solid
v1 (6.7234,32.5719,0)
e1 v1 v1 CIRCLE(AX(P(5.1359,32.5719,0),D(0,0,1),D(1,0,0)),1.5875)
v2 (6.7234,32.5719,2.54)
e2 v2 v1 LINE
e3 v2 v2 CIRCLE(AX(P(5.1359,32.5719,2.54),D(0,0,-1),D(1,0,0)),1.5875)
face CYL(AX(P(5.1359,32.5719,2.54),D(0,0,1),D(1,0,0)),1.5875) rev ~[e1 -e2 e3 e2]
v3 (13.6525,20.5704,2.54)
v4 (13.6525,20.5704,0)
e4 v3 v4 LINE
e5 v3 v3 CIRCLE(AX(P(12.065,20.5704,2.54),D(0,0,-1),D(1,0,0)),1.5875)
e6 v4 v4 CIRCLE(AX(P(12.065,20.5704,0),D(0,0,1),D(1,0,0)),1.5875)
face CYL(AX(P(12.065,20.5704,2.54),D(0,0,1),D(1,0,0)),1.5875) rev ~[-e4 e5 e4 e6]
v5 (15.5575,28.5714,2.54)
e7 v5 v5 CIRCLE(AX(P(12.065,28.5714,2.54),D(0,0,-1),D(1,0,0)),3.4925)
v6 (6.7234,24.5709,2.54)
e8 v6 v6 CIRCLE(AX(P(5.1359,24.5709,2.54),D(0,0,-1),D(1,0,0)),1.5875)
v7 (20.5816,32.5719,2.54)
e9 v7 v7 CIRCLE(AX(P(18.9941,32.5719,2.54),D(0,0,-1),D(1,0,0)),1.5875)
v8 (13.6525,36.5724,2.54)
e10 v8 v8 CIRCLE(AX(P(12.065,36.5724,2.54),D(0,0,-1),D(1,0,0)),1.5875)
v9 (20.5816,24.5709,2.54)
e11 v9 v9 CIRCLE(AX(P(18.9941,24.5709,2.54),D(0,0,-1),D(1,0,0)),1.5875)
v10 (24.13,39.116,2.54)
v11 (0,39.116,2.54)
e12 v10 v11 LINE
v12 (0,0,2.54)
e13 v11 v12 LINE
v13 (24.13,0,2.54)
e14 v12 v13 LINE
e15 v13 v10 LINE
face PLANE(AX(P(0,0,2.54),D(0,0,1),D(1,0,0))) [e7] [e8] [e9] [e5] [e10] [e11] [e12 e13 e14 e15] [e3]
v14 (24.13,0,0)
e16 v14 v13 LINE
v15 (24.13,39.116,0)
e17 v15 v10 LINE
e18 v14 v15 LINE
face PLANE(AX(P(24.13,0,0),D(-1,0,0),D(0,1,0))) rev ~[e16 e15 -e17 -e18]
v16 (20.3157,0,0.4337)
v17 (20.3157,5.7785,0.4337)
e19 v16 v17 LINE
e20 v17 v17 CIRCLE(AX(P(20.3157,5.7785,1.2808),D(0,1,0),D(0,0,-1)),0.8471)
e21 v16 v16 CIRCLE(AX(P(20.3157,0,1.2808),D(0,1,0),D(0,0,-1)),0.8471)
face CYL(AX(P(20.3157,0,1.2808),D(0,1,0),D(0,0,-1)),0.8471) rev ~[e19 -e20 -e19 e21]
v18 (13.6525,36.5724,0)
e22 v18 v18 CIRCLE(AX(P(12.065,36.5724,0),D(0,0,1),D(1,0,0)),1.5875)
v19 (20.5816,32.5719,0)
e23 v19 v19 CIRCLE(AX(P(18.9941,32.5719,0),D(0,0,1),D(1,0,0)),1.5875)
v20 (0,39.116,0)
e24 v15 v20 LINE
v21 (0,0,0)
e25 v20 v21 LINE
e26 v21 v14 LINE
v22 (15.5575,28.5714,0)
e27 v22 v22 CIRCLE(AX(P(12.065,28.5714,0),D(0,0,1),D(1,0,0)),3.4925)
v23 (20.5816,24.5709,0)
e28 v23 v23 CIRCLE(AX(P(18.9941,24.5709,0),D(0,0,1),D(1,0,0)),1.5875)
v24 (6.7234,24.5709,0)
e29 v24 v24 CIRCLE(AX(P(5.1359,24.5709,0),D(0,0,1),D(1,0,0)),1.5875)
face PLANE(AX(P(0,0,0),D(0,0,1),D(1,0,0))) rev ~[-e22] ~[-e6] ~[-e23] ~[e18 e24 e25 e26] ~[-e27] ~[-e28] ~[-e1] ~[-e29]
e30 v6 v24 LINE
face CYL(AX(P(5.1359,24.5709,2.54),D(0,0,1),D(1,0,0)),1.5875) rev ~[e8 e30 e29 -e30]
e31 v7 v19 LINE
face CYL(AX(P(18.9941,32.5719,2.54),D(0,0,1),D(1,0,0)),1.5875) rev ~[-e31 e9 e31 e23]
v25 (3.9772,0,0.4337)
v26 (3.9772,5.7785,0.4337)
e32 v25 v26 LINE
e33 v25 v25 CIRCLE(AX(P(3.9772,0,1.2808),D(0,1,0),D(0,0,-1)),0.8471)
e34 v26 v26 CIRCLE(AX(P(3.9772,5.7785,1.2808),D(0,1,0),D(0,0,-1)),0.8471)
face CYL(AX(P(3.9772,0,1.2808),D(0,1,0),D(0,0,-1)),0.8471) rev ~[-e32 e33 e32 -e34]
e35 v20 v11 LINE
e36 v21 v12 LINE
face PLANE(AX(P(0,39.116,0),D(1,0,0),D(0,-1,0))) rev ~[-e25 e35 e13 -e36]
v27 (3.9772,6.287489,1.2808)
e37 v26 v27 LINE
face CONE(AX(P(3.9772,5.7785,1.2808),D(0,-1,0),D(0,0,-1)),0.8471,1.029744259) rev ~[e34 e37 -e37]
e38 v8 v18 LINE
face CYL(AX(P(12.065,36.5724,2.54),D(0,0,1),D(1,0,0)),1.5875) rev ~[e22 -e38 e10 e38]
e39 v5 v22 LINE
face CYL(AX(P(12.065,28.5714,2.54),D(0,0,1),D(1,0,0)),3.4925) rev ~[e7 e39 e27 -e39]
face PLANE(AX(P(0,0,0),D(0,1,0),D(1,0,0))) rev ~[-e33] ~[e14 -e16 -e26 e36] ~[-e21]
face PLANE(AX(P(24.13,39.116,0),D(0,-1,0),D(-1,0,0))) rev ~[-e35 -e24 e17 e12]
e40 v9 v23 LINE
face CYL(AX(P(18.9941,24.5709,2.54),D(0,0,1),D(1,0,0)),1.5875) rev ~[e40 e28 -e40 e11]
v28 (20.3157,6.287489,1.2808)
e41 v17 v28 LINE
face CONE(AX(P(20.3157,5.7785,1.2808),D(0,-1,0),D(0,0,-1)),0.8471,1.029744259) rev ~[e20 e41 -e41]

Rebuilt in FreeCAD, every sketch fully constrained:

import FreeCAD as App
import Part
import Sketcher
from FreeCAD import Vector
Q = App.Units.Quantity


def add_polygon(sketch, points):
    """Adds a closed chain of lines whose ends are joined by coincident constraints."""
    first, n = sketch.GeometryCount, len(points)
    for a, b in zip(points, points[1:] + points[:1]):
        sketch.addGeometry(Part.LineSegment(App.Vector(*a, 0), App.Vector(*b, 0)), False)
    for i in range(n):
        sketch.addConstraint(Sketcher.Constraint("Coincident", first + i, 2, first + (i + 1) % n, 1))

doc = App.newDocument("Part")
params = doc.addObject("Spreadsheet::Sheet", "Params")
for row, (alias, value) in enumerate([
    ("sketch1_width", "0.95 in"),
    ("sketch1_height", "1.54 in"),
    ("pad1_length", "0.1 in"),
    ("hole_diameter", "0.0667008 in"),
    ("hole_depth", "0.2275 in"),
    ("sketch3_diameter", "0.275 in"),
    ("sketch3_diameter2", "0.125 in"),
], start=1):
    params.set(f"A{row}", alias)
    params.set(f"B{row}", "=" + value)
    params.setAlias(f"B{row}", alias)

body = doc.addObject("PartDesign::Body", "Body")

sketch1 = body.newObject("Sketcher::SketchObject", "Sketch")
sketch1.AttachmentSupport = (doc.getObject("XY_Plane"), [""])
sketch1.MapMode = "FlatFace"
add_polygon(sketch1, [(0, 39.116), (0, 0), (24.13, 0), (24.13, 39.116)])
sketch1.addConstraint([
    Sketcher.Constraint("Vertical", 0),
    Sketcher.Constraint("Horizontal", 1),
    Sketcher.Constraint("Vertical", 2),
    Sketcher.Constraint("Horizontal", 3),
    Sketcher.Constraint("Coincident", 0, 2, -1, 1),
    Sketcher.Constraint("DistanceX", 1, 1, 1, 2, Q("0.95 in")),
    Sketcher.Constraint("DistanceY", 0, 2, 0, 1, Q("1.54 in")),
])
sketch1.setExpression("Constraints[9]", "Params.sketch1_width")
sketch1.setExpression("Constraints[10]", "Params.sketch1_height")
pad1 = body.newObject("PartDesign::Pad", "Pad")
pad1.Profile = sketch1
pad1.setExpression("Length", "Params.pad1_length")

sketch2 = body.newObject("Sketcher::SketchObject", "Sketch001")
sketch2.AttachmentSupport = (doc.getObject("XZ_Plane"), [""])
sketch2.MapMode = "FlatFace"
sketch2.addGeometry([
    Part.Circle(Vector(3.9772, 1.2808, 0), Vector(0, 0, 1), 0.8471),
    Part.Circle(Vector(20.3157, 1.2808, 0), Vector(0, 0, 1), 0.8471),
], False)
sketch2.addConstraint([
    Sketcher.Constraint("Equal", 0, 1),
    Sketcher.Constraint("Horizontal", 0, 3, 1, 3),
    Sketcher.Constraint("Diameter", 0, Q("0.0667 in")),
    Sketcher.Constraint("DistanceX", -1, 1, 0, 3, 3.9772),
    Sketcher.Constraint("DistanceY", -1, 1, 0, 3, 1.2808),
    Sketcher.Constraint("DistanceX", -1, 1, 1, 3, 20.3157),
])
doc.recompute()
hole = body.newObject("PartDesign::Hole", "Hole")
hole.Profile = sketch2
hole.ThreadType = "None"
hole.setExpression("Diameter", "Params.hole_diameter")
hole.DepthType = "Dimension"
hole.setExpression("Depth", "Params.hole_depth")
hole.DrillPoint = "Angled"
hole.DrillPointAngle = 118

sketch3 = body.newObject("Sketcher::SketchObject", "Sketch002")
sketch3.AttachmentSupport = (doc.getObject("XY_Plane"), [""])
sketch3.MapMode = "FlatFace"
sketch3.AttachmentOffset = App.Placement(Vector(0, 0, 0.1 * 25.4), App.Rotation())
sketch3.addGeometry([
    Part.Circle(Vector(12.065, 28.5714, 0), Vector(0, 0, 1), 3.4925),
    Part.Circle(Vector(12.065, 36.5724, 0), Vector(0, 0, 1), 1.5875),
    Part.Circle(Vector(5.1359, 32.5719, 0), Vector(0, 0, 1), 1.5875),
    Part.Circle(Vector(18.9941, 32.5719, 0), Vector(0, 0, 1), 1.5875),
    Part.Circle(Vector(5.1359, 24.5709, 0), Vector(0, 0, 1), 1.5875),
    Part.Circle(Vector(18.9941, 24.5709, 0), Vector(0, 0, 1), 1.5875),
    Part.Circle(Vector(12.065, 20.5704, 0), Vector(0, 0, 1), 1.5875),
], False)
sketch3.addConstraint([
    Sketcher.Constraint("Equal", 1, 2),
    Sketcher.Constraint("Equal", 2, 3),
    Sketcher.Constraint("Equal", 3, 4),
    Sketcher.Constraint("Equal", 4, 5),
    Sketcher.Constraint("Equal", 5, 6),
    Sketcher.Constraint("Horizontal", 2, 3, 3, 3),
    Sketcher.Constraint("Horizontal", 4, 3, 5, 3),
    Sketcher.Constraint("Vertical", 0, 3, 1, 3),
    Sketcher.Constraint("Vertical", 2, 3, 4, 3),
    Sketcher.Constraint("Vertical", 3, 3, 5, 3),
    Sketcher.Constraint("Vertical", 1, 3, 6, 3),
    Sketcher.Constraint("Diameter", 0, Q("0.275 in")),
    Sketcher.Constraint("Diameter", 1, Q("0.125 in")),
    Sketcher.Constraint("DistanceX", -1, 1, 0, 3, Q("0.475 in")),
    Sketcher.Constraint("DistanceY", 0, 3, 1, 3, Q("0.315 in")),
    Sketcher.Constraint("DistanceY", 4, 3, 2, 3, Q("0.315 in")),
    Sketcher.Constraint("DistanceY", 6, 3, 0, 3, Q("0.315 in")),
    Sketcher.Constraint("DistanceX", -1, 1, 2, 3, Q("0.2022 in")),
    Sketcher.Constraint("DistanceX", -1, 1, 3, 3, Q("0.7478 in")),
    Sketcher.Constraint("DistanceY", 0, 3, 2, 3, Q("0.1575 in")),
    Sketcher.Constraint("DistanceY", -1, 1, 0, 3, 28.5714),
])
sketch3.setExpression("Constraints[11]", "Params.sketch3_diameter")
sketch3.setExpression("Constraints[12]", "Params.sketch3_diameter2")
pocket1 = body.newObject("PartDesign::Pocket", "Pocket")
pocket1.Profile = sketch3
pocket1.Type = "ThroughAll"

doc.recompute()
